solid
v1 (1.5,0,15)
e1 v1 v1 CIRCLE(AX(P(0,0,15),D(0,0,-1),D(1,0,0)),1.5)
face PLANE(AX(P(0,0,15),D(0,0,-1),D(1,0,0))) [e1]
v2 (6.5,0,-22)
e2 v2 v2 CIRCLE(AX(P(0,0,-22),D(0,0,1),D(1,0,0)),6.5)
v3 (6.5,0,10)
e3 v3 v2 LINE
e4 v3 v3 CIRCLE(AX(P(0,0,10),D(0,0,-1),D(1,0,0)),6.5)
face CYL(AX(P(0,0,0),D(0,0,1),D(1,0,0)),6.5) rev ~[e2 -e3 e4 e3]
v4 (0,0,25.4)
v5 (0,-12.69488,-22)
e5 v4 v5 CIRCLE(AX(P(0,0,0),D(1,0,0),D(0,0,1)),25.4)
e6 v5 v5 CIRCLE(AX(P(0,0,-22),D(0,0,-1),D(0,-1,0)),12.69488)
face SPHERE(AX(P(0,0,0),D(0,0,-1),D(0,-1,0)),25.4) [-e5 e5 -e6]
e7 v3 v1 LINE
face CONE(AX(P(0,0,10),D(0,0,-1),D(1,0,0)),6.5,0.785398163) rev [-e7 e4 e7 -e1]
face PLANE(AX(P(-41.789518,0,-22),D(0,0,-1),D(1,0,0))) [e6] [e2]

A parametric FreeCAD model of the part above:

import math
import FreeCAD as App
import Part
import Sketcher
from FreeCAD import Vector
Q = App.Units.Quantity


def edges_at(feature, points):
    """Names of the edges that pass closest to the given points."""
    edges = feature.Shape.Edges
    near = lambda p: min(range(len(edges)), key=lambda i: edges[i].distToShape(Part.Vertex(*p))[0])
    return sorted({f"Edge{near(p) + 1}" for p in points})


def add_polygon(sketch, points):
    """Adds a closed chain of lines whose ends are joined by coincident constraints."""
    first, n = sketch.GeometryCount, len(points)
    for a, b in zip(points, points[1:] + points[:1]):
        sketch.addGeometry(Part.LineSegment(App.Vector(*a, 0), App.Vector(*b, 0)), False)
    for i in range(n):
        sketch.addConstraint(Sketcher.Constraint("Coincident", first + i, 2, first + (i + 1) % n, 1))

doc = App.newDocument("Part")
body = doc.addObject("PartDesign::Body", "Body")

# Sketch on YZ plane
sketch1 = doc.addObject("Sketcher::SketchObject", "Sketch")
body.addObject(sketch1)
sketch1.AttachmentSupport = (doc.YZ_Plane, [""])
sketch1.MapMode = "FlatFace"
sketch1.addGeometry([
    Part.LineSegment(Vector(0, -25, 0), Vector(0, 25, 0)),
    Part.ArcOfCircle(Part.Circle(Vector(0, 0, 0), Vector(0, 0, 1), 25), math.radians(90), math.radians(270)),
], False)
sketch1.addConstraint([
    Sketcher.Constraint("Coincident", 0, 1, 1, 2),
    Sketcher.Constraint("Coincident", 1, 1, 0, 2),
    Sketcher.Constraint("Vertical", 0),
    Sketcher.Constraint("Coincident", 1, 3, -1, 1),
    Sketcher.Constraint("PointOnObject", 0, 1, -2),
    Sketcher.Constraint("Radius", 1, Q("25.4 mm")),
])
revolution = doc.addObject("PartDesign::Revolution", "Revolution")
body.addObject(revolution)
revolution.Profile = sketch1
revolution.ReferenceAxis = (sketch1, ["V_Axis"])
revolution.Angle = 360

# Sketch on XY plane
sketch2 = doc.addObject("Sketcher::SketchObject", "Sketch001")
body.addObject(sketch2)
sketch2.AttachmentSupport = (doc.XY_Plane, [""])
sketch2.MapMode = "FlatFace"
sketch2.addGeometry(Part.Circle(Vector(0, 0, 0), Vector(0, 0, 1), 6), False)
sketch2.addConstraint([
    Sketcher.Constraint("Coincident", 0, 3, -1, 1),
    Sketcher.Constraint("Diameter", 0, Q("13 mm")),
])
pocket1 = doc.addObject("PartDesign::Pocket", "Pocket")
body.addObject(pocket1)
pocket1.Profile = sketch2
pocket1.Length = 30

# Sketch on XZ plane
sketch3 = doc.addObject("Sketcher::SketchObject", "Sketch002")
body.addObject(sketch3)
sketch3.AttachmentSupport = (doc.XZ_Plane, [""])
sketch3.MapMode = "FlatFace"
add_polygon(sketch3, [(-42, -22), (-42, -72), (66, -72), (66, -22)])  # lines 0-3
sketch3.addConstraint([
    Sketcher.Constraint("Vertical", 0),
    Sketcher.Constraint("Horizontal", 1),
    Sketcher.Constraint("Vertical", 2),
    Sketcher.Constraint("Horizontal", 3),
    Sketcher.Constraint("DistanceY", 2, 2, -1, 1, Q("22 mm")),
    Sketcher.Constraint("DistanceY", 0, 2, 0, 1, Q("49.906041 mm")),
    Sketcher.Constraint("DistanceX", 1, 1, 1, 2, Q("107.489927 mm")),
    Sketcher.Constraint("DistanceX", 0, 2, -1, 1, Q("41.789518 mm")),
])
pocket2 = doc.addObject("PartDesign::Pocket", "Pocket001")
body.addObject(pocket2)
pocket2.Profile = sketch3
pocket2.Length = 30
pocket2.Midplane = True

# Sketch on XY plane
sketch4 = doc.addObject("Sketcher::SketchObject", "Sketch003")
body.addObject(sketch4)
sketch4.AttachmentSupport = (doc.XY_Plane, [""])
sketch4.MapMode = "FlatFace"
sketch4.addGeometry(Part.Circle(Vector(0, 0, 0), Vector(0, 0, 1), 6), False)
sketch4.addConstraint([
    Sketcher.Constraint("Coincident", 0, 3, -1, 1),
    Sketcher.Constraint("Diameter", 0, Q("13 mm")),
])
pocket3 = doc.addObject("PartDesign::Pocket", "Pocket002")
body.addObject(pocket3)
pocket3.Profile = sketch4
pocket3.Length = 15
pocket3.Reversed = True
doc.recompute()

chamfer = doc.addObject("PartDesign::Chamfer", "Chamfer")
body.addObject(chamfer)
chamfer.Base = (pocket3, edges_at(pocket3, [(-6.5, 0, 15)]))
chamfer.Size = 5

doc.recompute()
